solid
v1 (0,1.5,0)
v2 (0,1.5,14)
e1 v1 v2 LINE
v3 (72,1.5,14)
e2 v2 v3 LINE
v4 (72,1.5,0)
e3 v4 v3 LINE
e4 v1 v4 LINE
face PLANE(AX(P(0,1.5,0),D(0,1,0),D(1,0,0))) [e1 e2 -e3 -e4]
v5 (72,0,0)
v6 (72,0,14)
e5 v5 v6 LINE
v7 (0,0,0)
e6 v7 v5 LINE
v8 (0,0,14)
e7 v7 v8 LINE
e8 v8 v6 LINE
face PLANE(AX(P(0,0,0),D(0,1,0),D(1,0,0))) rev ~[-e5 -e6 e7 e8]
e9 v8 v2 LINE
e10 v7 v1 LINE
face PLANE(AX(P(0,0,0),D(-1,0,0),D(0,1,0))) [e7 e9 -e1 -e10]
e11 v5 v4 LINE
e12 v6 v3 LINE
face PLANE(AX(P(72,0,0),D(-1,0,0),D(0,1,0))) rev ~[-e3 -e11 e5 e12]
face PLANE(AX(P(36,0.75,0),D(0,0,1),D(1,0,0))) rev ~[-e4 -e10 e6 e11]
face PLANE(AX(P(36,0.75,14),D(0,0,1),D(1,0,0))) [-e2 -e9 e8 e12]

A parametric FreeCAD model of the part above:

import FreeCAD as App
import Part
import Sketcher
Q = App.Units.Quantity


def add_polygon(sketch, points):
    """Adds a closed chain of lines whose ends are joined by coincident constraints."""
    first, n = sketch.GeometryCount, len(points)
    for a, b in zip(points, points[1:] + points[:1]):
        sketch.addGeometry(Part.LineSegment(App.Vector(*a, 0), App.Vector(*b, 0)), False)
    for i in range(n):
        sketch.addConstraint(Sketcher.Constraint("Coincident", first + i, 2, first + (i + 1) % n, 1))

doc = App.newDocument("Part")
body = doc.addObject("PartDesign::Body", "Body")

# Sketch on XY plane
sketch1 = doc.addObject("Sketcher::SketchObject", "Sketch")
body.addObject(sketch1)
sketch1.AttachmentSupport = (doc.XY_Plane, [""])
sketch1.MapMode = "FlatFace"
add_polygon(sketch1, [(0, 1.5), (0, 0), (72, 0), (72, 1.5)])  # lines 0-3
sketch1.addConstraint(Sketcher.Constraint("Vertical", 0))
sketch1.addConstraint(Sketcher.Constraint("Horizontal", 1))
sketch1.addConstraint(Sketcher.Constraint("Vertical", 2))
sketch1.addConstraint(Sketcher.Constraint("Horizontal", 3))
sketch1.addConstraint(Sketcher.Constraint("Coincident", 0, 2, -1, 1))
sketch1.addConstraint(Sketcher.Constraint("DistanceX", 1, 1, 1, 2, Q("72 mm")))
sketch1.addConstraint(Sketcher.Constraint("DistanceY", 0, 2, 0, 1, Q("1.5 mm")))
pad1 = doc.addObject("PartDesign::Pad", "Pad")
body.addObject(pad1)
pad1.Profile = sketch1
pad1.Length = 14

doc.recompute()
